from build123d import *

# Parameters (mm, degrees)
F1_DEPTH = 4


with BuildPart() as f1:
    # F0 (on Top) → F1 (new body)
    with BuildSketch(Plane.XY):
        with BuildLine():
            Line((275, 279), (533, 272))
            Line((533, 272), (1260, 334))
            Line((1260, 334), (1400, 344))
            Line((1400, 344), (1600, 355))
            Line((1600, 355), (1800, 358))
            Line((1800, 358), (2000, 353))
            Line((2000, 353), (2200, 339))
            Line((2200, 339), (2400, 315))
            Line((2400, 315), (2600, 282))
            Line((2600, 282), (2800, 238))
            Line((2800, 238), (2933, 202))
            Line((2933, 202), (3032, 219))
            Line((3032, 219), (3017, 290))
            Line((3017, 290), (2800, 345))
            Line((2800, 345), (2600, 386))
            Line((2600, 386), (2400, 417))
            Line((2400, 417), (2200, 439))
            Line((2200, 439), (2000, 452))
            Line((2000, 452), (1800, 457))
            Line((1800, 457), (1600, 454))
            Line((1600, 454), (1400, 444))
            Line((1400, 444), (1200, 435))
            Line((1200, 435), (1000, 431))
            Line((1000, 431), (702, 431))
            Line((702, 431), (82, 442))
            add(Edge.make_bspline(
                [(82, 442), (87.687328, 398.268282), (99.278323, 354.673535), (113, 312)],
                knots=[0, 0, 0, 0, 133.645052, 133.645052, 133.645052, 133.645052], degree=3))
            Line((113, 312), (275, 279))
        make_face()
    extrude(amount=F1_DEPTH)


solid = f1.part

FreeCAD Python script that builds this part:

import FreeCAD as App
import Part
import Sketcher
from FreeCAD import Vector

doc = App.newDocument("Part")
body = doc.addObject("PartDesign::Body", "Body")

sketch1 = body.newObject("Sketcher::SketchObject", "Sketch")
sketch1.AttachmentSupport = (doc.getObject("XY_Plane"), [""])
sketch1.MapMode = "FlatFace"
sketch1.addGeometry(Part.LineSegment(Vector(275, 279, 0), Vector(533, 272, 0)), False)
sketch1.addGeometry(Part.LineSegment(Vector(533, 272, 0), Vector(1260, 334, 0)), False)
sketch1.addGeometry(Part.LineSegment(Vector(1260, 334, 0), Vector(1400, 344, 0)), False)
sketch1.addGeometry(Part.LineSegment(Vector(1400, 344, 0), Vector(1600, 355, 0)), False)
sketch1.addGeometry(Part.LineSegment(Vector(1600, 355, 0), Vector(1800, 358, 0)), False)
sketch1.addGeometry(Part.LineSegment(Vector(1800, 358, 0), Vector(2000, 353, 0)), False)
sketch1.addGeometry(Part.LineSegment(Vector(2000, 353, 0), Vector(2200, 339, 0)), False)
sketch1.addGeometry(Part.LineSegment(Vector(2200, 339, 0), Vector(2400, 315, 0)), False)
sketch1.addGeometry(Part.LineSegment(Vector(2400, 315, 0), Vector(2600, 282, 0)), False)
sketch1.addGeometry(Part.LineSegment(Vector(2600, 282, 0), Vector(2800, 238, 0)), False)
sketch1.addGeometry(Part.LineSegment(Vector(2800, 238, 0), Vector(2933, 202, 0)), False)
sketch1.addGeometry(Part.LineSegment(Vector(2933, 202, 0), Vector(3032, 219, 0)), False)
sketch1.addGeometry(Part.LineSegment(Vector(3032, 219, 0), Vector(3017, 290, 0)), False)
sketch1.addGeometry(Part.LineSegment(Vector(3017, 290, 0), Vector(2800, 345, 0)), False)
sketch1.addGeometry(Part.LineSegment(Vector(2800, 345, 0), Vector(2600, 386, 0)), False)
sketch1.addGeometry(Part.LineSegment(Vector(2600, 386, 0), Vector(2400, 417, 0)), False)
sketch1.addGeometry(Part.LineSegment(Vector(2400, 417, 0), Vector(2200, 439, 0)), False)
sketch1.addGeometry(Part.LineSegment(Vector(2200, 439, 0), Vector(2000, 452, 0)), False)
sketch1.addGeometry(Part.LineSegment(Vector(2000, 452, 0), Vector(1800, 457, 0)), False)
sketch1.addGeometry(Part.LineSegment(Vector(1800, 457, 0), Vector(1600, 454, 0)), False)
sketch1.addGeometry(Part.LineSegment(Vector(1600, 454, 0), Vector(1400, 444, 0)), False)
sketch1.addGeometry(Part.LineSegment(Vector(1400, 444, 0), Vector(1200, 435, 0)), False)
sketch1.addGeometry(Part.LineSegment(Vector(1200, 435, 0), Vector(1000, 431, 0)), False)
sketch1.addGeometry(Part.LineSegment(Vector(1000, 431, 0), Vector(702, 431, 0)), False)
sketch1.addGeometry(Part.LineSegment(Vector(702, 431, 0), Vector(82, 442, 0)), False)
sketch1.addGeometry(Part.BSplineCurve([Vector(82, 442, 0), Vector(87.687328, 398.268282, 0), Vector(99.278323, 354.673535, 0), Vector(113, 312, 0)], [4, 4], [0, 133.645052], False, 3, [1, 1, 1, 1], False), False)
sketch1.addGeometry(Part.LineSegment(Vector(113, 312, 0), Vector(275, 279, 0)), False)
sketch1.addConstraint(Sketcher.Constraint("Block", 25))
sketch1.addConstraint(Sketcher.Constraint("Coincident", 0, 2, 1, 1))
sketch1.addConstraint(Sketcher.Constraint("Coincident", 1, 2, 2, 1))
sketch1.addConstraint(Sketcher.Constraint("Coincident", 2, 2, 3, 1))
sketch1.addConstraint(Sketcher.Constraint("Coincident", 3, 2, 4, 1))
sketch1.addConstraint(Sketcher.Constraint("Coincident", 4, 2, 5, 1))
sketch1.addConstraint(Sketcher.Constraint("Coincident", 5, 2, 6, 1))
sketch1.addConstraint(Sketcher.Constraint("Coincident", 6, 2, 7, 1))
sketch1.addConstraint(Sketcher.Constraint("Coincident", 7, 2, 8, 1))
sketch1.addConstraint(Sketcher.Constraint("Coincident", 8, 2, 9, 1))
sketch1.addConstraint(Sketcher.Constraint("Coincident", 9, 2, 10, 1))
sketch1.addConstraint(Sketcher.Constraint("Coincident", 10, 2, 11, 1))
sketch1.addConstraint(Sketcher.Constraint("Coincident", 11, 2, 12, 1))
sketch1.addConstraint(Sketcher.Constraint("Coincident", 12, 2, 13, 1))
sketch1.addConstraint(Sketcher.Constraint("Coincident", 13, 2, 14, 1))
sketch1.addConstraint(Sketcher.Constraint("Coincident", 14, 2, 15, 1))
sketch1.addConstraint(Sketcher.Constraint("Coincident", 15, 2, 16, 1))
sketch1.addConstraint(Sketcher.Constraint("Coincident", 16, 2, 17, 1))
sketch1.addConstraint(Sketcher.Constraint("Coincident", 17, 2, 18, 1))
sketch1.addConstraint(Sketcher.Constraint("Coincident", 18, 2, 19, 1))
sketch1.addConstraint(Sketcher.Constraint("Coincident", 19, 2, 20, 1))
sketch1.addConstraint(Sketcher.Constraint("Coincident", 20, 2, 21, 1))
sketch1.addConstraint(Sketcher.Constraint("Coincident", 21, 2, 22, 1))
sketch1.addConstraint(Sketcher.Constraint("Coincident", 22, 2, 23, 1))
sketch1.addConstraint(Sketcher.Constraint("Coincident", 23, 2, 24, 1))
sketch1.addConstraint(Sketcher.Constraint("Coincident", 24, 2, 25, 1))
sketch1.addConstraint(Sketcher.Constraint("Coincident", 25, 2, 26, 1))
sketch1.addConstraint(Sketcher.Constraint("Coincident", 26, 2, 0, 1))
sketch1.addConstraint(Sketcher.Constraint("Horizontal", 23))
sketch1.addConstraint(Sketcher.Constraint("Parallel", 5, 18))
sketch1.addConstraint(Sketcher.Constraint("Parallel", 4, 19))
sketch1.addConstraint(Sketcher.Constraint("Vertical", 9, 2, 13, 2))
sketch1.addConstraint(Sketcher.Constraint("Vertical", 8, 2, 14, 2))
sketch1.addConstraint(Sketcher.Constraint("Vertical", 7, 2, 15, 2))
sketch1.addConstraint(Sketcher.Constraint("Vertical", 6, 2, 16, 2))
sketch1.addConstraint(Sketcher.Constraint("Vertical", 5, 2, 17, 2))
sketch1.addConstraint(Sketcher.Constraint("Vertical", 4, 2, 18, 2))
sketch1.addConstraint(Sketcher.Constraint("Vertical", 3, 2, 19, 2))
sketch1.addConstraint(Sketcher.Constraint("Vertical", 2, 2, 20, 2))
sketch1.addConstraint(Sketcher.Constraint("DistanceX", 23, 2, 23, 1, 298.0))
sketch1.addConstraint(Sketcher.Constraint("DistanceX", -1, 1, 0, 2, 533.0))
sketch1.addConstraint(Sketcher.Constraint("DistanceY", -1, 1, 0, 2, 272.0))
sketch1.addConstraint(Sketcher.Constraint("DistanceX", -1, 1, 1, 2, 1260.0))
sketch1.addConstraint(Sketcher.Constraint("DistanceY", -1, 1, 1, 2, 334.0))
sketch1.addConstraint(Sketcher.Constraint("DistanceX", -1, 1, 2, 2, 1400.0))
sketch1.addConstraint(Sketcher.Constraint("DistanceY", -1, 1, 2, 2, 344.0))
sketch1.addConstraint(Sketcher.Constraint("DistanceX", -1, 1, 3, 2, 1600.0))
sketch1.addConstraint(Sketcher.Constraint("DistanceY", -1, 1, 3, 2, 355.0))
sketch1.addConstraint(Sketcher.Constraint("DistanceX", -1, 1, 4, 2, 1800.0))
sketch1.addConstraint(Sketcher.Constraint("DistanceY", -1, 1, 4, 2, 358.0))
sketch1.addConstraint(Sketcher.Constraint("DistanceX", -1, 1, 5, 2, 2000.0))
sketch1.addConstraint(Sketcher.Constraint("DistanceY", -1, 1, 5, 2, 353.0))
sketch1.addConstraint(Sketcher.Constraint("DistanceX", -1, 1, 6, 2, 2200.0))
sketch1.addConstraint(Sketcher.Constraint("DistanceY", -1, 1, 6, 2, 339.0))
sketch1.addConstraint(Sketcher.Constraint("DistanceX", -1, 1, 7, 2, 2400.0))
sketch1.addConstraint(Sketcher.Constraint("DistanceY", -1, 1, 7, 2, 315.0))
sketch1.addConstraint(Sketcher.Constraint("DistanceX", -1, 1, 8, 2, 2600.0))
sketch1.addConstraint(Sketcher.Constraint("DistanceY", -1, 1, 8, 2, 282.0))
sketch1.addConstraint(Sketcher.Constraint("DistanceX", -1, 1, 9, 2, 2800.0))
sketch1.addConstraint(Sketcher.Constraint("DistanceY", -1, 1, 9, 2, 238.0))
sketch1.addConstraint(Sketcher.Constraint("DistanceX", -1, 1, 10, 2, 2933.0))
sketch1.addConstraint(Sketcher.Constraint("DistanceY", -1, 1, 10, 2, 202.0))
sketch1.addConstraint(Sketcher.Constraint("DistanceX", -1, 1, 11, 2, 3032.0))
sketch1.addConstraint(Sketcher.Constraint("DistanceY", -1, 1, 11, 2, 219.0))
sketch1.addConstraint(Sketcher.Constraint("DistanceX", -1, 1, 12, 2, 3017.0))
sketch1.addConstraint(Sketcher.Constraint("DistanceY", -1, 1, 12, 2, 290.0))
sketch1.addConstraint(Sketcher.Constraint("DistanceY", -1, 1, 13, 2, 345.0))
sketch1.addConstraint(Sketcher.Constraint("DistanceY", -1, 1, 14, 2, 386.0))
sketch1.addConstraint(Sketcher.Constraint("DistanceY", -1, 1, 15, 2, 417.0))
sketch1.addConstraint(Sketcher.Constraint("DistanceY", -1, 1, 16, 2, 439.0))
sketch1.addConstraint(Sketcher.Constraint("DistanceY", -1, 1, 17, 2, 452.0))
sketch1.addConstraint(Sketcher.Constraint("DistanceY", -1, 1, 20, 2, 444.0))
sketch1.addConstraint(Sketcher.Constraint("DistanceX", -1, 1, 21, 2, 1200.0))
sketch1.addConstraint(Sketcher.Constraint("DistanceY", -1, 1, 21, 2, 435.0))
sketch1.addConstraint(Sketcher.Constraint("DistanceX", -1, 1, 22, 2, 1000.0))
sketch1.addConstraint(Sketcher.Constraint("DistanceY", -1, 1, 22, 2, 431.0))
sketch1.addConstraint(Sketcher.Constraint("DistanceX", -1, 1, 26, 2, 275.0))
sketch1.addConstraint(Sketcher.Constraint("DistanceY", -1, 1, 26, 2, 279.0))
pad1 = body.newObject("PartDesign::Pad", "Pad")
pad1.Profile = sketch1
pad1.Length = 4

doc.recompute()
